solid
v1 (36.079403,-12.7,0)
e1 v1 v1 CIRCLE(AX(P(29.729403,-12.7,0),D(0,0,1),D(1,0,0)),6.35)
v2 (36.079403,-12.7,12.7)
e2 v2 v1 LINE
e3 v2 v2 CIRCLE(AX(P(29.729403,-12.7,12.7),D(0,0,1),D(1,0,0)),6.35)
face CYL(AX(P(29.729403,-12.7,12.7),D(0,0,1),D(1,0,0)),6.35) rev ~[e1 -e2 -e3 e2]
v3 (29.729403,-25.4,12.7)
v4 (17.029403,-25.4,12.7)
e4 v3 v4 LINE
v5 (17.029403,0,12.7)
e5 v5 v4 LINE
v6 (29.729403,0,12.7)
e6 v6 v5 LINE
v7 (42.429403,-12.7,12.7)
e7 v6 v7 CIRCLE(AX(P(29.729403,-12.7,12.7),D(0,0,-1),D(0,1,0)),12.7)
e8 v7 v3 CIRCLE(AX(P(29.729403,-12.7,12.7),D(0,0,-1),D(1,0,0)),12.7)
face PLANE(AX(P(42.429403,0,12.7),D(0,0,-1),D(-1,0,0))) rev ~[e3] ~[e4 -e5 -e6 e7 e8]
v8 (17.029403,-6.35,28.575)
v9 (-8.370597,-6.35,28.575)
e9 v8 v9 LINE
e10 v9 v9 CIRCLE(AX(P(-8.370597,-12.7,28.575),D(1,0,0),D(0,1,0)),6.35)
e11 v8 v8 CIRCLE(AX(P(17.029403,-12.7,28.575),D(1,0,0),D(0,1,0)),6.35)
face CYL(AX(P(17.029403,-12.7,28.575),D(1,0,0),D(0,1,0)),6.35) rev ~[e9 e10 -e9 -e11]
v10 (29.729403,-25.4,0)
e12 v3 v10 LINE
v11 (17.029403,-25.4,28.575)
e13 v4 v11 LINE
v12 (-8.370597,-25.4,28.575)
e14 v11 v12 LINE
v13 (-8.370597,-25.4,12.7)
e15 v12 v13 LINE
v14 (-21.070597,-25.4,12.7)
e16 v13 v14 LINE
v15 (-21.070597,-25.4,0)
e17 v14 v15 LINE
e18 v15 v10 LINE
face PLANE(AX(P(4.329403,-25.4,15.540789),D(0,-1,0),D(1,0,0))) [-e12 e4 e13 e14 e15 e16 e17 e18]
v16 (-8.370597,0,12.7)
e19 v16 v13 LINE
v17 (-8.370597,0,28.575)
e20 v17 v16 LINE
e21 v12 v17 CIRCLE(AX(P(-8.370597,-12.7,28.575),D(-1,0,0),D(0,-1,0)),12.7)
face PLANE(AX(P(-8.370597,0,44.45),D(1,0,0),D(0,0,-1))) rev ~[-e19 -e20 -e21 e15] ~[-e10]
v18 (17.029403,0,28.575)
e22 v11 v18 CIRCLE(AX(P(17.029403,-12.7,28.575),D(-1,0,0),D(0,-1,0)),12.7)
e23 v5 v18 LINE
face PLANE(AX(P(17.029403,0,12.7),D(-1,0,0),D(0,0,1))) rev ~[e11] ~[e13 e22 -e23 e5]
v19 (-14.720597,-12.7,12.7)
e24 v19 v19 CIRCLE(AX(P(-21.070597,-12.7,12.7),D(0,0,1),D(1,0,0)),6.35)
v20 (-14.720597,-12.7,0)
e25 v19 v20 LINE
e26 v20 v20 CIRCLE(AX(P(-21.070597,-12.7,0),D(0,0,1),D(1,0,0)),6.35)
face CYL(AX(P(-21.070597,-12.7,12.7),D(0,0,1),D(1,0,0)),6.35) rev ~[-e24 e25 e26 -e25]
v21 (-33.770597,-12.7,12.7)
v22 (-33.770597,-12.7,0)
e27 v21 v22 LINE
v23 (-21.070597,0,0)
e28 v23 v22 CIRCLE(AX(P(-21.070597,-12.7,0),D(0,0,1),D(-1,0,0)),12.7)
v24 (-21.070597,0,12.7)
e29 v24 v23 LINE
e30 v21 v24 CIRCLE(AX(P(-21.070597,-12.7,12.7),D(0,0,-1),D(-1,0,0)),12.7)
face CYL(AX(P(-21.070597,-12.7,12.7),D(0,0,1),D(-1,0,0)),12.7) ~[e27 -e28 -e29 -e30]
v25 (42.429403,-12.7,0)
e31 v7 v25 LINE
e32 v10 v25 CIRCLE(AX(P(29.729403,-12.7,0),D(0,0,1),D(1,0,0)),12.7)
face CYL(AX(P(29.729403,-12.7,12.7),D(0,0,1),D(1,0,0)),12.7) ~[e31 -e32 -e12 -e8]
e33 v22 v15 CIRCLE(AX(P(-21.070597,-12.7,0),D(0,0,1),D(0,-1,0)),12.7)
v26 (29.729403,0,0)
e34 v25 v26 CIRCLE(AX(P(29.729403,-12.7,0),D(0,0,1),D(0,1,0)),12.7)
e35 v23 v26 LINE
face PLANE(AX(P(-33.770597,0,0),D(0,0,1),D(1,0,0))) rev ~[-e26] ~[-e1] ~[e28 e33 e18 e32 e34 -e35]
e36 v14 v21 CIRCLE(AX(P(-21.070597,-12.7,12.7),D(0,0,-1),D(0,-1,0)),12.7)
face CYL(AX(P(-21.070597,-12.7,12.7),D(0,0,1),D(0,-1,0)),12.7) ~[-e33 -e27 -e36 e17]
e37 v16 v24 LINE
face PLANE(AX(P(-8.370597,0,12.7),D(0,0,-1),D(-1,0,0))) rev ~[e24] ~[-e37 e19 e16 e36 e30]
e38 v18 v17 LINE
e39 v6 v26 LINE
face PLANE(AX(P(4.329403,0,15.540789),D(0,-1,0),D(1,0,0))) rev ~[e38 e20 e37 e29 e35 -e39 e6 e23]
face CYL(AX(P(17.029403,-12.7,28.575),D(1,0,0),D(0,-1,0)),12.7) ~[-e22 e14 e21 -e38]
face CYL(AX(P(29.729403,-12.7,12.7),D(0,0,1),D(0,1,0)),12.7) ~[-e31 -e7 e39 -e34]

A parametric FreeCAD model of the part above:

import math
import FreeCAD as App
import Part
import Sketcher
from FreeCAD import Vector
Q = App.Units.Quantity


def add_polygon(sketch, points):
    """Adds a closed chain of lines whose ends are joined by coincident constraints."""
    first, n = sketch.GeometryCount, len(points)
    for a, b in zip(points, points[1:] + points[:1]):
        sketch.addGeometry(Part.LineSegment(App.Vector(*a, 0), App.Vector(*b, 0)), False)
    for i in range(n):
        sketch.addConstraint(Sketcher.Constraint("Coincident", first + i, 2, first + (i + 1) % n, 1))

doc = App.newDocument("Part")
body = doc.addObject("PartDesign::Body", "Body")

sketch1 = body.newObject("Sketcher::SketchObject", "Sketch")
sketch1.AttachmentSupport = (doc.getObject("XZ_Plane"), [""])
sketch1.MapMode = "FlatFace"
add_polygon(sketch1, [(-34, 13), (-34, 0), (42, 0), (42, 13), (17, 13), (17, 44), (-8, 44), (-8, 13)])
sketch1.addConstraint([
    Sketcher.Constraint("Vertical", 0),
    Sketcher.Constraint("Horizontal", 1),
    Sketcher.Constraint("Vertical", 2),
    Sketcher.Constraint("Horizontal", 3),
    Sketcher.Constraint("Vertical", 4),
    Sketcher.Constraint("Horizontal", 5),
    Sketcher.Constraint("Vertical", 6),
    Sketcher.Constraint("Horizontal", 7),
    Sketcher.Constraint("PointOnObject", 0, 2, -1),
    Sketcher.Constraint("Horizontal", 3, 2, 6, 2),
    Sketcher.Constraint("Equal", 3, 5),
    Sketcher.Constraint("Equal", 5, 7),
    Sketcher.Constraint("DistanceX", 1, 1, 1, 2, Q("3 in")),
    Sketcher.Constraint("DistanceY", 0, 2, 0, 1, Q("0.5 in")),
    Sketcher.Constraint("DistanceY", 4, 1, 4, 2, Q("1.25 in")),
    Sketcher.Constraint("DistanceX", 0, 2, -1, 1, 33.770597),
])
pad1 = body.newObject("PartDesign::Pad", "Pad")
pad1.Profile = sketch1
pad1.Length = Q("1 in")

sketch2 = body.newObject("Sketcher::SketchObject", "Sketch001")
sketch2.AttachmentSupport = (doc.getObject("YZ_Plane"), [""])
sketch2.MapMode = "FlatFace"
sketch2.AttachmentOffset = App.Placement(Vector(0, 0, 17.029403), App.Rotation())
sketch2.addGeometry([
    Part.ArcOfCircle(Part.Circle(Vector(-13, 29, 0), Vector(0, 0, 1), 13), math.radians(0), math.radians(180)),
    Part.LineSegment(Vector(0, 29, 0), Vector(0, 44, 0)),
    Part.LineSegment(Vector(0, 44, 0), Vector(-25, 44, 0)),
    Part.LineSegment(Vector(-25, 44, 0), Vector(-25, 29, 0)),
], False)
sketch2.addConstraint([
    Sketcher.Constraint("Tangent", 0, 1, 1, 1),
    Sketcher.Constraint("Coincident", 1, 2, 2, 1),
    Sketcher.Constraint("Coincident", 2, 2, 3, 1),
    Sketcher.Constraint("Tangent", 3, 2, 0, 2),
    Sketcher.Constraint("Vertical", 1),
    Sketcher.Constraint("Horizontal", 2),
    Sketcher.Constraint("Vertical", 3),
    Sketcher.Constraint("PointOnObject", 0, 1, -2),
    Sketcher.Constraint("Radius", 0, Q("0.5 in")),
    Sketcher.Constraint("DistanceY", 1, 1, 1, 2, Q("0.625 in")),
    Sketcher.Constraint("DistanceY", -1, 1, 1, 2, Q("1.75 in")),
])
pocket1 = body.newObject("PartDesign::Pocket", "Pocket")
pocket1.Profile = sketch2
pocket1.Length = Q("1 in")

sketch3 = body.newObject("Sketcher::SketchObject", "Sketch002")
sketch3.AttachmentSupport = (doc.getObject("YZ_Plane"), [""])
sketch3.MapMode = "FlatFace"
sketch3.AttachmentOffset = App.Placement(Vector(0, 0, 17.029403), App.Rotation())
sketch3.addGeometry(Part.Circle(Vector(-13, 29, 0), Vector(0, 0, 1), 6), False)
sketch3.addConstraint([
    Sketcher.Constraint("Diameter", 0, Q("0.5 in")),
    Sketcher.Constraint("DistanceX", 0, 3, -1, 1, Q("0.5 in")),
    Sketcher.Constraint("DistanceY", -1, 1, 0, 3, Q("1.125 in")),
])
pocket2 = body.newObject("PartDesign::Pocket", "Pocket001")
pocket2.Profile = sketch3
pocket2.Length = Q("1 in")

sketch4 = body.newObject("Sketcher::SketchObject", "Sketch003")
sketch4.AttachmentSupport = (doc.getObject("XY_Plane"), [""])
sketch4.MapMode = "FlatFace"
sketch4.AttachmentOffset = App.Placement(Vector(0, 0, 0.5 * 25.4), App.Rotation())
sketch4.addGeometry([
    Part.ArcOfCircle(Part.Circle(Vector(30, -13, 0), Vector(0, 0, 1), 13), math.radians(0), math.radians(90)),
    Part.LineSegment(Vector(42, -13, 0), Vector(42, 0, 0)),
    Part.LineSegment(Vector(42, 0, 0), Vector(30, 0, 0)),
    Part.LineSegment(Vector(42, -25, 0), Vector(42, -13, 0)),
    Part.ArcOfCircle(Part.Circle(Vector(30, -13, 0), Vector(0, 0, 1), 13), math.radians(-90), math.radians(0)),
    Part.LineSegment(Vector(30, -25, 0), Vector(42, -25, 0)),
], False)
sketch4.addConstraint([
    Sketcher.Constraint("Tangent", 0, 1, 1, 1),
    Sketcher.Constraint("Coincident", 1, 2, 2, 1),
    Sketcher.Constraint("Tangent", 2, 2, 0, 2),
    Sketcher.Constraint("Tangent", 3, 2, 4, 2),
    Sketcher.Constraint("Tangent", 4, 1, 5, 1),
    Sketcher.Constraint("Coincident", 5, 2, 3, 1),
    Sketcher.Constraint("Vertical", 1),
    Sketcher.Constraint("Horizontal", 2),
    Sketcher.Constraint("Vertical", 3),
    Sketcher.Constraint("Horizontal", 5),
    Sketcher.Constraint("Coincident", 4, 3, 0, 3),
    Sketcher.Constraint("Equal", 0, 4),
    Sketcher.Constraint("PointOnObject", 1, 2, -1),
    Sketcher.Constraint("Radius", 0, Q("0.5 in")),
    Sketcher.Constraint("DistanceX", -1, 1, 0, 3, 29.729403),
])
pocket3 = body.newObject("PartDesign::Pocket", "Pocket002")
pocket3.Profile = sketch4
pocket3.Length = Q("1 in")

sketch5 = body.newObject("Sketcher::SketchObject", "Sketch004")
sketch5.AttachmentSupport = (doc.getObject("XY_Plane"), [""])
sketch5.MapMode = "FlatFace"
sketch5.AttachmentOffset = App.Placement(Vector(0, 0, 0.5 * 25.4), App.Rotation())
sketch5.addGeometry([
    Part.ArcOfCircle(Part.Circle(Vector(-21, -13, 0), Vector(0, 0, 1), 13), math.radians(90), math.radians(180)),
    Part.LineSegment(Vector(-21, 0, 0), Vector(-34, 0, 0)),
    Part.LineSegment(Vector(-34, 0, 0), Vector(-34, -13, 0)),
    Part.LineSegment(Vector(-34, -25, 0), Vector(-21, -25, 0)),
    Part.ArcOfCircle(Part.Circle(Vector(-21, -13, 0), Vector(0, 0, 1), 13), math.radians(180), math.radians(270)),
    Part.LineSegment(Vector(-34, -13, 0), Vector(-34, -25, 0)),
], False)
sketch5.addConstraint([
    Sketcher.Constraint("Tangent", 0, 1, 1, 1),
    Sketcher.Constraint("Coincident", 1, 2, 2, 1),
    Sketcher.Constraint("Tangent", 2, 2, 0, 2),
    Sketcher.Constraint("Tangent", 3, 2, 4, 2),
    Sketcher.Constraint("Tangent", 4, 1, 5, 1),
    Sketcher.Constraint("Coincident", 5, 2, 3, 1),
    Sketcher.Constraint("Horizontal", 1),
    Sketcher.Constraint("Vertical", 2),
    Sketcher.Constraint("Horizontal", 3),
    Sketcher.Constraint("Vertical", 5),
    Sketcher.Constraint("Coincident", 4, 3, 0, 3),
    Sketcher.Constraint("Equal", 0, 4),
    Sketcher.Constraint("PointOnObject", 0, 1, -1),
    Sketcher.Constraint("Radius", 0, Q("0.5 in")),
    Sketcher.Constraint("DistanceX", 0, 3, -1, 1, 21.070597),
])
pocket4 = body.newObject("PartDesign::Pocket", "Pocket003")
pocket4.Profile = sketch5
pocket4.Length = Q("1 in")

sketch6 = body.newObject("Sketcher::SketchObject", "Sketch005")
sketch6.AttachmentSupport = (doc.getObject("XY_Plane"), [""])
sketch6.MapMode = "FlatFace"
sketch6.AttachmentOffset = App.Placement(Vector(0, 0, 0.5 * 25.4), App.Rotation())
sketch6.addGeometry(Part.Circle(Vector(-21, -13, 0), Vector(0, 0, 1), 6), False)
sketch6.addConstraint([
    Sketcher.Constraint("Diameter", 0, Q("0.5 in")),
    Sketcher.Constraint("DistanceY", 0, 3, -1, 1, Q("0.5 in")),
    Sketcher.Constraint("DistanceX", 0, 3, -1, 1, 21.070597),
])
pocket5 = body.newObject("PartDesign::Pocket", "Pocket004")
pocket5.Profile = sketch6
pocket5.Length = Q("1 in")

sketch7 = body.newObject("Sketcher::SketchObject", "Sketch006")
sketch7.AttachmentSupport = (doc.getObject("XY_Plane"), [""])
sketch7.MapMode = "FlatFace"
sketch7.AttachmentOffset = App.Placement(Vector(0, 0, 0.5 * 25.4), App.Rotation())
sketch7.addGeometry(Part.Circle(Vector(30, -13, 0), Vector(0, 0, 1), 6), False)
sketch7.addConstraint([
    Sketcher.Constraint("Diameter", 0, Q("0.5 in")),
    Sketcher.Constraint("DistanceY", 0, 3, -1, 1, Q("0.5 in")),
    Sketcher.Constraint("DistanceX", -1, 1, 0, 3, 29.729403),
])
pocket6 = body.newObject("PartDesign::Pocket", "Pocket005")
pocket6.Profile = sketch7
pocket6.Length = Q("1 in")

doc.recompute()
